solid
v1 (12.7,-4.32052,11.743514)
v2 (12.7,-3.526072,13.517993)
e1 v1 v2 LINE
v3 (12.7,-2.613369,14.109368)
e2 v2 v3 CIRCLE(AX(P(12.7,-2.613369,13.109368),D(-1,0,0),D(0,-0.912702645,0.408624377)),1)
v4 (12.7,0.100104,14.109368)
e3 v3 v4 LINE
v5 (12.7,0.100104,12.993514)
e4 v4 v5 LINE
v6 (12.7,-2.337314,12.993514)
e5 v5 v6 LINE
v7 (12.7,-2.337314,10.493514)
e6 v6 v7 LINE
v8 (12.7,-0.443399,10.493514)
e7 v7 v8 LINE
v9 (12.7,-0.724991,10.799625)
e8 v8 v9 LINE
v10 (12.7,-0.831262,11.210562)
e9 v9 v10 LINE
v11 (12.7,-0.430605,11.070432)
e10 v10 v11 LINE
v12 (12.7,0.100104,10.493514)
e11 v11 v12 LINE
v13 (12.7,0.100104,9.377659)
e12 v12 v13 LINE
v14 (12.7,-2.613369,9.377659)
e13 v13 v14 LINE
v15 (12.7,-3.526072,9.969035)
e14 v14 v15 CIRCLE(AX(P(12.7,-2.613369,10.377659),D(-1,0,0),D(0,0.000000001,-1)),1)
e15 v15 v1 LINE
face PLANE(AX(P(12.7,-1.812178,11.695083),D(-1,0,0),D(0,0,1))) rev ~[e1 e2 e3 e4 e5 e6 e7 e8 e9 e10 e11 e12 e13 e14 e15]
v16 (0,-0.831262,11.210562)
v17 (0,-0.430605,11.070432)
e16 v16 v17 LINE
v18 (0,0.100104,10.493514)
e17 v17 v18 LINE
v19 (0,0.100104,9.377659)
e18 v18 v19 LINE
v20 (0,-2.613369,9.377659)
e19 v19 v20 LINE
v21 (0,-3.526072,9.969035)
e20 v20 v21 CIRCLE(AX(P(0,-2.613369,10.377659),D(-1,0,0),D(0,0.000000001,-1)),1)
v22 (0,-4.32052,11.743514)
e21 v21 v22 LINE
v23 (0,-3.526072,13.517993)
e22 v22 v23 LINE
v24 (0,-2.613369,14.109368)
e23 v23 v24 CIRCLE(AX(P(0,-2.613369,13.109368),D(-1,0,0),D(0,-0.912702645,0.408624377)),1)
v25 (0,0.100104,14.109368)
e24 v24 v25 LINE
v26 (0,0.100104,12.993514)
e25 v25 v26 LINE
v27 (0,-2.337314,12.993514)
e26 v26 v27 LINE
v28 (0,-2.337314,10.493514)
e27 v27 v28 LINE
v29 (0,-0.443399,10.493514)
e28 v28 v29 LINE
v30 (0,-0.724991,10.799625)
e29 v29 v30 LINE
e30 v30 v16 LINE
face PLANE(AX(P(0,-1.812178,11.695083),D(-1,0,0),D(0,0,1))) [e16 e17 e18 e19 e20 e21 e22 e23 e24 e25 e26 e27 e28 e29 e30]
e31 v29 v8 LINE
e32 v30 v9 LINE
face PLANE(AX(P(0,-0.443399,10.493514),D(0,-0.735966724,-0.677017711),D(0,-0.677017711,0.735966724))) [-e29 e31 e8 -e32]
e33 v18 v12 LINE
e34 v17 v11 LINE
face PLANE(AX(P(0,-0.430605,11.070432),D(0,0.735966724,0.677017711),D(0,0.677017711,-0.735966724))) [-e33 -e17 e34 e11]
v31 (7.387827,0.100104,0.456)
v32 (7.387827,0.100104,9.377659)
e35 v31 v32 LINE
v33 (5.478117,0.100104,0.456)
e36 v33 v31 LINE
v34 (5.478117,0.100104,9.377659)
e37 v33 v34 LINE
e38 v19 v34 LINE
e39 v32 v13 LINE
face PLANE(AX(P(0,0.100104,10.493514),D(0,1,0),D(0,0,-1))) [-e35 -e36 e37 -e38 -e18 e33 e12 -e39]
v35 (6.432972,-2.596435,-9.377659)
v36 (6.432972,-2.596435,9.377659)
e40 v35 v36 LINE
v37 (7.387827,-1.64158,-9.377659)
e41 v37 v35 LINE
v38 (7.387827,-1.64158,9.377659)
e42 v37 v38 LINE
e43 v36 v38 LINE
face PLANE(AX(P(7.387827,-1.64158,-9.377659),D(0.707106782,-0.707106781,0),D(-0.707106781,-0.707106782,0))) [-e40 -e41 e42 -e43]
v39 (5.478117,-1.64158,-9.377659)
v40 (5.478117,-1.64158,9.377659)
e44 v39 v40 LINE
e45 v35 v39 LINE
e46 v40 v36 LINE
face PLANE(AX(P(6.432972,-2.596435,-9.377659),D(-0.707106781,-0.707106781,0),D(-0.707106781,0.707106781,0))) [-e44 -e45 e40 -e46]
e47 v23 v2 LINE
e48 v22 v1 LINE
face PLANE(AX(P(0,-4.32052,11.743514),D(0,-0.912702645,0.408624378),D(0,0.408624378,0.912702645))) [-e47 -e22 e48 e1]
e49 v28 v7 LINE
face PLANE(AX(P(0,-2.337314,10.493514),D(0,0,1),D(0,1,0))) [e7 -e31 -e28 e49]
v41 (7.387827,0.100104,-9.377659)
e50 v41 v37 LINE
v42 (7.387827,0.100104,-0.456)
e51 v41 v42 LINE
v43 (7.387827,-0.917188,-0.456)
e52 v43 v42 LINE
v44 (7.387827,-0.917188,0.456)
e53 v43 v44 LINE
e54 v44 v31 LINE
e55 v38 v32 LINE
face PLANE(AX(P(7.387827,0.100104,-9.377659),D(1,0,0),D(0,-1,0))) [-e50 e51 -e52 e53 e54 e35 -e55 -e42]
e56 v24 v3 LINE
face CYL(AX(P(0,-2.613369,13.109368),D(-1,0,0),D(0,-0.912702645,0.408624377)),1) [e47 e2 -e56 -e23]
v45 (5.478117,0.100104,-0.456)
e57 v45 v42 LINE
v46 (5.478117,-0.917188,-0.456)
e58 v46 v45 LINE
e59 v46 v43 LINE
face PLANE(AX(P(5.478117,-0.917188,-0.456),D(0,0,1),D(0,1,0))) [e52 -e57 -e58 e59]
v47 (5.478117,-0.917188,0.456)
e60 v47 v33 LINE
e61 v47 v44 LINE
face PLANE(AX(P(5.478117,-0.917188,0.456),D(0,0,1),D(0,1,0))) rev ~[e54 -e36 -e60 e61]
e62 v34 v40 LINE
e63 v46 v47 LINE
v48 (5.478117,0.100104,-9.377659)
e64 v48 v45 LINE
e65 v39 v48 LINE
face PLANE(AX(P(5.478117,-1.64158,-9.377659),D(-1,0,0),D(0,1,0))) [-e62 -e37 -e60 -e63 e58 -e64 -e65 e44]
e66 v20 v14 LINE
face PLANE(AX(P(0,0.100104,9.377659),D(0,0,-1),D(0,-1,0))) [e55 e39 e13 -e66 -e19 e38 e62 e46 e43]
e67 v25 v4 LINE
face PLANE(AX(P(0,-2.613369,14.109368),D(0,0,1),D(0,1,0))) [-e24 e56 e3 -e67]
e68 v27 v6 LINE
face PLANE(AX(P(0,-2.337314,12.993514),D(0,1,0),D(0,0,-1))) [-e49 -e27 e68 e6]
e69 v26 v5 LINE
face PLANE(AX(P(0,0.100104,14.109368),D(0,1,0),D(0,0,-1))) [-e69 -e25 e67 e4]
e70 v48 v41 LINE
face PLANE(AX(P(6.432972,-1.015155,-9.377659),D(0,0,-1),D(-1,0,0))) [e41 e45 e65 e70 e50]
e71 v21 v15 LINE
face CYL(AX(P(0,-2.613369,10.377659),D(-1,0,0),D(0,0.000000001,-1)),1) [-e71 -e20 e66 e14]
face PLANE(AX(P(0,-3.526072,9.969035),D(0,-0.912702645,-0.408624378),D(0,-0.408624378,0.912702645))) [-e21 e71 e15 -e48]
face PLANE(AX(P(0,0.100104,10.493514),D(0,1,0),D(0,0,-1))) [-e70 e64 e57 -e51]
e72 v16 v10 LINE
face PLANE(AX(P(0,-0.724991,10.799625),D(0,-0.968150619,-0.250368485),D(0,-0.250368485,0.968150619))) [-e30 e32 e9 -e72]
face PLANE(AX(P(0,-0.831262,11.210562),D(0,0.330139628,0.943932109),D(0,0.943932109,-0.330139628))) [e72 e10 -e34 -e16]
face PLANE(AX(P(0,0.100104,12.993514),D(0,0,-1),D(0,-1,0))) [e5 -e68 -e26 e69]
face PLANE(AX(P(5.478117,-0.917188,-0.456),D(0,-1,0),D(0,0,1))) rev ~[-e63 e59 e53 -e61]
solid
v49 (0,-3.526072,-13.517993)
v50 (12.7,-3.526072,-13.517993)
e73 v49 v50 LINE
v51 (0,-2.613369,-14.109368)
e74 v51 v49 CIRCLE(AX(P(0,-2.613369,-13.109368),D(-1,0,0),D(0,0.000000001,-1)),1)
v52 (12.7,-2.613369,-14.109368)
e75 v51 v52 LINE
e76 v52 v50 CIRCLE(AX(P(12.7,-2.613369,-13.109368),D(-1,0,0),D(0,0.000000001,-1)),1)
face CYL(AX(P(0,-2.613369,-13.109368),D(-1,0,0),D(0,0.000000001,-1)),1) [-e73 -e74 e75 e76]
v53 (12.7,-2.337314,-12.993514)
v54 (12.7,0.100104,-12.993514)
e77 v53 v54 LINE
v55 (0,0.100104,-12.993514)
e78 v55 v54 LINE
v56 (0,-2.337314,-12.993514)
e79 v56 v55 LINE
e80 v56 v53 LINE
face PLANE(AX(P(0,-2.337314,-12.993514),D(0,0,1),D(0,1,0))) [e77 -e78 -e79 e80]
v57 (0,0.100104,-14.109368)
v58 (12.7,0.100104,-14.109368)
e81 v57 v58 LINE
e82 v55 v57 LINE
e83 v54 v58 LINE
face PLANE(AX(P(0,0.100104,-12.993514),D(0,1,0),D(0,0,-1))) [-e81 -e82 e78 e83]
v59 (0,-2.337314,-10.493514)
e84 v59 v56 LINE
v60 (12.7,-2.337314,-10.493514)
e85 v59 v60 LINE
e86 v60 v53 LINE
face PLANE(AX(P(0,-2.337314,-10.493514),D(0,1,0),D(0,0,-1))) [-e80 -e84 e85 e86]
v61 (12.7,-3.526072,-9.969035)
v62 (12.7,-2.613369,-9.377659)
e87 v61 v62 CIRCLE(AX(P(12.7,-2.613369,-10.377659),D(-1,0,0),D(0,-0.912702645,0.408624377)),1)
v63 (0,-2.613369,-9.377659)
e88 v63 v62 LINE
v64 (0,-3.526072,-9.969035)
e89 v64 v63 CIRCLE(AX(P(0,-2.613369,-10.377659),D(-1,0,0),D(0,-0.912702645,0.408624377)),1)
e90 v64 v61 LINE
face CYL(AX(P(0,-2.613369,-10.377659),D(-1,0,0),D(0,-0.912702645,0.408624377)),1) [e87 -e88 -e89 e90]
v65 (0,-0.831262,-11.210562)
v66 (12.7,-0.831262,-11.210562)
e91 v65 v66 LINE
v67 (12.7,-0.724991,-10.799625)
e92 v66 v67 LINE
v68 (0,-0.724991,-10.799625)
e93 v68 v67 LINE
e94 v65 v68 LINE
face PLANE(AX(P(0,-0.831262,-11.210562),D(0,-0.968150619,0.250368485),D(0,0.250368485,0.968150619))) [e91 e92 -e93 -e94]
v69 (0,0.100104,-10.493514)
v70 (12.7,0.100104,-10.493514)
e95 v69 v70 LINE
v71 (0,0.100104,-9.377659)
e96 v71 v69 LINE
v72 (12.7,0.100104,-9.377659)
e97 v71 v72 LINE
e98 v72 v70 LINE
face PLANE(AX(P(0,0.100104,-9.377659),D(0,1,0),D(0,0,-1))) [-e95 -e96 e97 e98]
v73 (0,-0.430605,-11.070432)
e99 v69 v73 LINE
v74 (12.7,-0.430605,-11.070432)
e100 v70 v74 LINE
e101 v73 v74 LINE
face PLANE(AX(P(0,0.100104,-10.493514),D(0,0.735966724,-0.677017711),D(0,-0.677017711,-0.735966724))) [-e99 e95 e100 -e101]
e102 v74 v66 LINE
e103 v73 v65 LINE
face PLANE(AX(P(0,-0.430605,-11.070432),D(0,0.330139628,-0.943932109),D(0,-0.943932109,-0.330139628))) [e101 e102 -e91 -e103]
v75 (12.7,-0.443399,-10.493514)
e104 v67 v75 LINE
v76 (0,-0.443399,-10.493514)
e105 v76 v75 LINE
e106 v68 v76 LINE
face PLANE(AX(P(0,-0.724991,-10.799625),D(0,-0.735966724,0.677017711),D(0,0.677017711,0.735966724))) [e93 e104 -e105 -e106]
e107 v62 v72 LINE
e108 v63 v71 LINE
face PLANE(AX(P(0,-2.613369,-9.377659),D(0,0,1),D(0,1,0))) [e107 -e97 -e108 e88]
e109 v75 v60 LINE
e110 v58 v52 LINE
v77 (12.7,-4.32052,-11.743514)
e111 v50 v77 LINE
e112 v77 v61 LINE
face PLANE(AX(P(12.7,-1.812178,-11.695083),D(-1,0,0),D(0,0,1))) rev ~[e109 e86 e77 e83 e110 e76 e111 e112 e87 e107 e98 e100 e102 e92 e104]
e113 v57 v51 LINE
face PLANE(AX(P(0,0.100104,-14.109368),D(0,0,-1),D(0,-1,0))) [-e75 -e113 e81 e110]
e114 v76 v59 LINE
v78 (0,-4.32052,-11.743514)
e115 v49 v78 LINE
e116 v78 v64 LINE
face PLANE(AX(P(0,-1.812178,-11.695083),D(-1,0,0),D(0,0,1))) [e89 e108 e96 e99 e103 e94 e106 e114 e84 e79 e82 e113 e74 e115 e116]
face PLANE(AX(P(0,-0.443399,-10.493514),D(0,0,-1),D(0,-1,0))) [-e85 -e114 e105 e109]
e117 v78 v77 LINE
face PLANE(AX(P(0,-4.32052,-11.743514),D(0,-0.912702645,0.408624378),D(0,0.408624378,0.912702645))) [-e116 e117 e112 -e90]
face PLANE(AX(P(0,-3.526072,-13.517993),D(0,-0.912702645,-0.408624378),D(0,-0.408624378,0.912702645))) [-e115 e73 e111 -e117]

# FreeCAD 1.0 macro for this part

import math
import FreeCAD as App
import Part
import Sketcher
from FreeCAD import Vector


def add_polygon(sketch, points):
    """Adds a closed chain of lines whose ends are joined by coincident constraints."""
    first, n = sketch.GeometryCount, len(points)
    for a, b in zip(points, points[1:] + points[:1]):
        sketch.addGeometry(Part.LineSegment(App.Vector(*a, 0), App.Vector(*b, 0)), False)
    for i in range(n):
        sketch.addConstraint(Sketcher.Constraint("Coincident", first + i, 2, first + (i + 1) % n, 1))

doc = App.newDocument("Part")
body = doc.addObject("PartDesign::Body", "Body")

# Sketch on YZ plane
sketch1 = doc.addObject("Sketcher::SketchObject", "Sketch")
body.addObject(sketch1)
sketch1.AttachmentSupport = (doc.YZ_Plane, [""])
sketch1.MapMode = "FlatFace"
sketch1.addGeometry([
    Part.LineSegment(Vector(-0.44, -10.49, 0), Vector(-0.72, -10.8, 0)),  # 0
    Part.LineSegment(Vector(-0.72, -10.8, 0), Vector(-0.83, -11.21, 0)),  # 1
    Part.LineSegment(Vector(-0.83, -11.21, 0), Vector(-0.43, -11.07, 0)),  # 2
    Part.LineSegment(Vector(-0.43, -11.07, 0), Vector(0.1, -10.49, 0)),  # 3
    Part.LineSegment(Vector(0.1, -10.49, 0), Vector(0.1, -9.38, 0)),  # 4
    Part.LineSegment(Vector(0.1, -9.38, 0), Vector(-2.61, -9.38, 0)),  # 5
    Part.ArcOfCircle(Part.Circle(Vector(-2.61, -10.38, 0), Vector(0, 0, 1), 1), math.radians(90), math.radians(156)),  # 6
    Part.LineSegment(Vector(-3.53, -9.97, 0), Vector(-4.32, -11.74, 0)),  # 7
    Part.LineSegment(Vector(-4.32, -11.74, 0), Vector(-3.53, -13.52, 0)),  # 8
    Part.ArcOfCircle(Part.Circle(Vector(-2.61, -13.11, 0), Vector(0, 0, 1), 1), math.radians(-156), math.radians(-90)),  # 9
    Part.LineSegment(Vector(-2.61, -14.11, 0), Vector(0.1, -14.11, 0)),  # 10
    Part.LineSegment(Vector(0.1, -14.11, 0), Vector(0.1, -12.99, 0)),  # 11
    Part.LineSegment(Vector(0.1, -12.99, 0), Vector(-2.34, -12.99, 0)),  # 12
    Part.LineSegment(Vector(-2.34, -12.99, 0), Vector(-2.34, -10.49, 0)),  # 13
    Part.LineSegment(Vector(-2.34, -10.49, 0), Vector(-0.44, -10.49, 0)),  # 14
], False)
sketch1.addConstraint([
    Sketcher.Constraint("Coincident", 0, 2, 1, 1),
    Sketcher.Constraint("Coincident", 1, 2, 2, 1),
    Sketcher.Constraint("Coincident", 2, 2, 3, 1),
    Sketcher.Constraint("Coincident", 3, 2, 4, 1),
    Sketcher.Constraint("Coincident", 4, 2, 5, 1),
    Sketcher.Constraint("Tangent", 5, 2, 6, 1),
    Sketcher.Constraint("Tangent", 6, 2, 7, 1),
    Sketcher.Constraint("Coincident", 7, 2, 8, 1),
    Sketcher.Constraint("Tangent", 8, 2, 9, 1),
    Sketcher.Constraint("Tangent", 9, 2, 10, 1),
    Sketcher.Constraint("Coincident", 10, 2, 11, 1),
    Sketcher.Constraint("Coincident", 11, 2, 12, 1),
    Sketcher.Constraint("Coincident", 12, 2, 13, 1),
    Sketcher.Constraint("Coincident", 13, 2, 14, 1),
    Sketcher.Constraint("Coincident", 14, 2, 0, 1),
    Sketcher.Constraint("Vertical", 4),
    Sketcher.Constraint("Horizontal", 5),
    Sketcher.Constraint("Horizontal", 10),
    Sketcher.Constraint("Vertical", 11),
    Sketcher.Constraint("Horizontal", 12),
    Sketcher.Constraint("Vertical", 13),
    Sketcher.Constraint("Horizontal", 14),
    Sketcher.Constraint("Equal", 6, 9),
    Sketcher.Constraint("Parallel", 0, 3),
    Sketcher.Constraint("Horizontal", 3, 2, 13, 2),
    Sketcher.Constraint("Vertical", 6, 3, 9, 3),
    Sketcher.Constraint("Vertical", 6, 2, 8, 2),
    Sketcher.Constraint("Vertical", 4, 2, 10, 2),
    Sketcher.Constraint("Equal", 4, 11),
    Sketcher.Constraint("Equal", 1, 2),
    Sketcher.Constraint("Radius", 6, 1.0),
    Sketcher.Constraint("DistanceY", 13, 1, 13, 2, 2.5),
    Sketcher.Constraint("DistanceX", 12, 2, 12, 1, 2.437419),
    Sketcher.Constraint("DistanceX", 14, 2, -1, 1, 0.443399),
    Sketcher.Constraint("Distance", 0, 0.415931),
    Sketcher.Constraint("DistanceX", 5, 2, 5, 1, 2.713473),
    Sketcher.Constraint("DistanceX", 14, 1, 14, 2, 1.893916),
    Sketcher.Constraint("DistanceY", 4, 1, 4, 2, 1.115854),
    Sketcher.Constraint("DistanceY", 6, 3, -1, 1, 10.377659),
    Sketcher.Constraint("DistanceX", 0, 2, -1, 1, 0.724991),
    Sketcher.Constraint("DistanceX", 1, 2, -1, 1, 0.831262),
    Sketcher.Constraint("DistanceY", 1, 2, -1, 1, 11.210562),
    Sketcher.Constraint("DistanceX", 6, 2, -1, 1, 3.526072),
])
pad1 = doc.addObject("PartDesign::Pad", "Pad")
body.addObject(pad1)
pad1.Profile = sketch1
pad1.Length = 12.7
body2 = doc.addObject("PartDesign::Body", "Body001")

# Sketch on YZ plane
sketch2 = doc.addObject("Sketcher::SketchObject", "Sketch001")
body2.addObject(sketch2)
sketch2.AttachmentSupport = (doc.getObject("YZ_Plane001"), [""])
sketch2.MapMode = "FlatFace"
sketch2.addGeometry([
    Part.LineSegment(Vector(0.1, 9.38, 0), Vector(0.1, 10.49, 0)),  # 0
    Part.LineSegment(Vector(0.1, 10.49, 0), Vector(-0.43, 11.07, 0)),  # 1
    Part.LineSegment(Vector(-0.43, 11.07, 0), Vector(-0.83, 11.21, 0)),  # 2
    Part.LineSegment(Vector(-0.83, 11.21, 0), Vector(-0.72, 10.8, 0)),  # 3
    Part.LineSegment(Vector(-0.72, 10.8, 0), Vector(-0.44, 10.49, 0)),  # 4
    Part.LineSegment(Vector(-0.44, 10.49, 0), Vector(-2.34, 10.49, 0)),  # 5
    Part.LineSegment(Vector(-2.34, 10.49, 0), Vector(-2.34, 12.99, 0)),  # 6
    Part.LineSegment(Vector(-2.34, 12.99, 0), Vector(0.1, 12.99, 0)),  # 7
    Part.LineSegment(Vector(0.1, 12.99, 0), Vector(0.1, 14.11, 0)),  # 8
    Part.LineSegment(Vector(0.1, 14.11, 0), Vector(-2.61, 14.11, 0)),  # 9
    Part.ArcOfCircle(Part.Circle(Vector(-2.61, 13.11, 0), Vector(0, 0, 1), 1), math.radians(90), math.radians(156)),  # 10
    Part.LineSegment(Vector(-3.53, 13.52, 0), Vector(-4.32, 11.74, 0)),  # 11
    Part.LineSegment(Vector(-4.32, 11.74, 0), Vector(-3.53, 9.97, 0)),  # 12
    Part.ArcOfCircle(Part.Circle(Vector(-2.61, 10.38, 0), Vector(0, 0, 1), 1), math.radians(-156), math.radians(-90)),  # 13
    Part.LineSegment(Vector(-2.61, 9.38, 0), Vector(0.1, 9.38, 0)),  # 14
], False)
sketch2.addConstraint([
    Sketcher.Constraint("Coincident", 0, 2, 1, 1),
    Sketcher.Constraint("Coincident", 1, 2, 2, 1),
    Sketcher.Constraint("Coincident", 2, 2, 3, 1),
    Sketcher.Constraint("Coincident", 3, 2, 4, 1),
    Sketcher.Constraint("Coincident", 4, 2, 5, 1),
    Sketcher.Constraint("Coincident", 5, 2, 6, 1),
    Sketcher.Constraint("Coincident", 6, 2, 7, 1),
    Sketcher.Constraint("Coincident", 7, 2, 8, 1),
    Sketcher.Constraint("Coincident", 8, 2, 9, 1),
    Sketcher.Constraint("Tangent", 9, 2, 10, 1),
    Sketcher.Constraint("Tangent", 10, 2, 11, 1),
    Sketcher.Constraint("Coincident", 11, 2, 12, 1),
    Sketcher.Constraint("Tangent", 12, 2, 13, 1),
    Sketcher.Constraint("Tangent", 13, 2, 14, 1),
    Sketcher.Constraint("Coincident", 14, 2, 0, 1),
    Sketcher.Constraint("Vertical", 0),
    Sketcher.Constraint("Horizontal", 5),
    Sketcher.Constraint("Vertical", 6),
    Sketcher.Constraint("Horizontal", 7),
    Sketcher.Constraint("Vertical", 8),
    Sketcher.Constraint("Horizontal", 9),
    Sketcher.Constraint("Horizontal", 14),
    Sketcher.Constraint("Equal", 10, 13),
    Sketcher.Constraint("Parallel", 1, 4),
    Sketcher.Constraint("Horizontal", 0, 2, 4, 2),
    Sketcher.Constraint("Vertical", 10, 3, 13, 3),
    Sketcher.Constraint("Vertical", 0, 2, 7, 2),
    Sketcher.Constraint("Vertical", 10, 2, 12, 2),
    Sketcher.Constraint("Equal", 0, 8),
    Sketcher.Constraint("Equal", 2, 3),
    Sketcher.Constraint("Radius", 10, 1.0),
    Sketcher.Constraint("DistanceY", 6, 1, 6, 2, 2.5),
    Sketcher.Constraint("DistanceX", 7, 1, 7, 2, 2.437419),
    Sketcher.Constraint("DistanceX", 4, 2, -1, 1, 0.443399),
    Sketcher.Constraint("Distance", 4, 0.415931),
    Sketcher.Constraint("DistanceX", 5, 2, 5, 1, 1.893916),
    Sketcher.Constraint("DistanceX", 9, 2, 9, 1, 2.713473),
    Sketcher.Constraint("DistanceY", 0, 1, 0, 2, 1.115854),
    Sketcher.Constraint("DistanceY", -1, 1, 10, 3, 13.109368),
    Sketcher.Constraint("DistanceX", 2, 2, -1, 1, 0.831262),
    Sketcher.Constraint("DistanceY", -1, 1, 2, 2, 11.210562),
    Sketcher.Constraint("DistanceX", 3, 2, -1, 1, 0.724991),
    Sketcher.Constraint("DistanceX", 10, 2, -1, 1, 3.526072),
])
pad2 = doc.addObject("PartDesign::Pad", "Pad001")
body2.addObject(pad2)
pad2.Profile = sketch2
pad2.Length = 12.7

# Sketch on XY plane
sketch3 = doc.addObject("Sketcher::SketchObject", "Sketch002")
body2.addObject(sketch3)
sketch3.AttachmentSupport = (doc.getObject("XY_Plane001"), [""])
sketch3.MapMode = "FlatFace"
sketch3.AttachmentOffset = App.Placement(Vector(0, 0, -9.377659), App.Rotation())
add_polygon(sketch3, [(7.4, 0.1), (5.5, 0.1), (5.5, -1.6), (6.4, -2.6), (7.4, -1.6)])  # lines 0-4
sketch3.addConstraint([
    Sketcher.Constraint("Horizontal", 0),
    Sketcher.Constraint("Vertical", 1),
    Sketcher.Constraint("Vertical", 4),
    Sketcher.Constraint("Perpendicular", 2, 3),
    Sketcher.Constraint("Horizontal", 1, 2, 3, 2),
    Sketcher.Constraint("Equal", 2, 3),
    Sketcher.Constraint("DistanceX", 0, 2, 0, 1, 1.90971),
    Sketcher.Constraint("DistanceY", 1, 2, 1, 1, 1.741684),
    Sketcher.Constraint("DistanceY", 1, 2, -1, 1, 1.64158),
    Sketcher.Constraint("DistanceX", -1, 1, 0, 2, 5.478117),
])
pad3 = doc.addObject("PartDesign::Pad", "Pad002")
body2.addObject(pad3)
pad3.Profile = sketch3
pad3.Type = "UpToFirst"

# Sketch on YZ plane
sketch4 = doc.addObject("Sketcher::SketchObject", "Sketch003")
body2.addObject(sketch4)
sketch4.AttachmentSupport = (doc.getObject("YZ_Plane001"), [""])
sketch4.MapMode = "FlatFace"
sketch4.AttachmentOffset = App.Placement(Vector(0, 0, 5.478117), App.Rotation())
add_polygon(sketch4, [(0.1, -0.5), (-0.9, -0.5), (-0.9, 0.5), (0.1, 0.5)])  # lines 0-3
sketch4.addConstraint([
    Sketcher.Constraint("Horizontal", 0),
    Sketcher.Constraint("Vertical", 1),
    Sketcher.Constraint("Horizontal", 2),
    Sketcher.Constraint("Vertical", 3),
    Sketcher.Constraint("DistanceY", 1, 1, 1, 2, 0.912),
    Sketcher.Constraint("DistanceY", 0, 2, -1, 1, 0.456),
    Sketcher.Constraint("DistanceX", 0, 2, 0, 1, 1.017293),
    Sketcher.Constraint("DistanceX", 0, 2, -1, 1, 0.917188),
])
pocket1 = doc.addObject("PartDesign::Pocket", "Pocket")
body2.addObject(pocket1)
pocket1.Profile = sketch4
pocket1.Length = 1.90971
pocket1.Reversed = True

doc.recompute()
